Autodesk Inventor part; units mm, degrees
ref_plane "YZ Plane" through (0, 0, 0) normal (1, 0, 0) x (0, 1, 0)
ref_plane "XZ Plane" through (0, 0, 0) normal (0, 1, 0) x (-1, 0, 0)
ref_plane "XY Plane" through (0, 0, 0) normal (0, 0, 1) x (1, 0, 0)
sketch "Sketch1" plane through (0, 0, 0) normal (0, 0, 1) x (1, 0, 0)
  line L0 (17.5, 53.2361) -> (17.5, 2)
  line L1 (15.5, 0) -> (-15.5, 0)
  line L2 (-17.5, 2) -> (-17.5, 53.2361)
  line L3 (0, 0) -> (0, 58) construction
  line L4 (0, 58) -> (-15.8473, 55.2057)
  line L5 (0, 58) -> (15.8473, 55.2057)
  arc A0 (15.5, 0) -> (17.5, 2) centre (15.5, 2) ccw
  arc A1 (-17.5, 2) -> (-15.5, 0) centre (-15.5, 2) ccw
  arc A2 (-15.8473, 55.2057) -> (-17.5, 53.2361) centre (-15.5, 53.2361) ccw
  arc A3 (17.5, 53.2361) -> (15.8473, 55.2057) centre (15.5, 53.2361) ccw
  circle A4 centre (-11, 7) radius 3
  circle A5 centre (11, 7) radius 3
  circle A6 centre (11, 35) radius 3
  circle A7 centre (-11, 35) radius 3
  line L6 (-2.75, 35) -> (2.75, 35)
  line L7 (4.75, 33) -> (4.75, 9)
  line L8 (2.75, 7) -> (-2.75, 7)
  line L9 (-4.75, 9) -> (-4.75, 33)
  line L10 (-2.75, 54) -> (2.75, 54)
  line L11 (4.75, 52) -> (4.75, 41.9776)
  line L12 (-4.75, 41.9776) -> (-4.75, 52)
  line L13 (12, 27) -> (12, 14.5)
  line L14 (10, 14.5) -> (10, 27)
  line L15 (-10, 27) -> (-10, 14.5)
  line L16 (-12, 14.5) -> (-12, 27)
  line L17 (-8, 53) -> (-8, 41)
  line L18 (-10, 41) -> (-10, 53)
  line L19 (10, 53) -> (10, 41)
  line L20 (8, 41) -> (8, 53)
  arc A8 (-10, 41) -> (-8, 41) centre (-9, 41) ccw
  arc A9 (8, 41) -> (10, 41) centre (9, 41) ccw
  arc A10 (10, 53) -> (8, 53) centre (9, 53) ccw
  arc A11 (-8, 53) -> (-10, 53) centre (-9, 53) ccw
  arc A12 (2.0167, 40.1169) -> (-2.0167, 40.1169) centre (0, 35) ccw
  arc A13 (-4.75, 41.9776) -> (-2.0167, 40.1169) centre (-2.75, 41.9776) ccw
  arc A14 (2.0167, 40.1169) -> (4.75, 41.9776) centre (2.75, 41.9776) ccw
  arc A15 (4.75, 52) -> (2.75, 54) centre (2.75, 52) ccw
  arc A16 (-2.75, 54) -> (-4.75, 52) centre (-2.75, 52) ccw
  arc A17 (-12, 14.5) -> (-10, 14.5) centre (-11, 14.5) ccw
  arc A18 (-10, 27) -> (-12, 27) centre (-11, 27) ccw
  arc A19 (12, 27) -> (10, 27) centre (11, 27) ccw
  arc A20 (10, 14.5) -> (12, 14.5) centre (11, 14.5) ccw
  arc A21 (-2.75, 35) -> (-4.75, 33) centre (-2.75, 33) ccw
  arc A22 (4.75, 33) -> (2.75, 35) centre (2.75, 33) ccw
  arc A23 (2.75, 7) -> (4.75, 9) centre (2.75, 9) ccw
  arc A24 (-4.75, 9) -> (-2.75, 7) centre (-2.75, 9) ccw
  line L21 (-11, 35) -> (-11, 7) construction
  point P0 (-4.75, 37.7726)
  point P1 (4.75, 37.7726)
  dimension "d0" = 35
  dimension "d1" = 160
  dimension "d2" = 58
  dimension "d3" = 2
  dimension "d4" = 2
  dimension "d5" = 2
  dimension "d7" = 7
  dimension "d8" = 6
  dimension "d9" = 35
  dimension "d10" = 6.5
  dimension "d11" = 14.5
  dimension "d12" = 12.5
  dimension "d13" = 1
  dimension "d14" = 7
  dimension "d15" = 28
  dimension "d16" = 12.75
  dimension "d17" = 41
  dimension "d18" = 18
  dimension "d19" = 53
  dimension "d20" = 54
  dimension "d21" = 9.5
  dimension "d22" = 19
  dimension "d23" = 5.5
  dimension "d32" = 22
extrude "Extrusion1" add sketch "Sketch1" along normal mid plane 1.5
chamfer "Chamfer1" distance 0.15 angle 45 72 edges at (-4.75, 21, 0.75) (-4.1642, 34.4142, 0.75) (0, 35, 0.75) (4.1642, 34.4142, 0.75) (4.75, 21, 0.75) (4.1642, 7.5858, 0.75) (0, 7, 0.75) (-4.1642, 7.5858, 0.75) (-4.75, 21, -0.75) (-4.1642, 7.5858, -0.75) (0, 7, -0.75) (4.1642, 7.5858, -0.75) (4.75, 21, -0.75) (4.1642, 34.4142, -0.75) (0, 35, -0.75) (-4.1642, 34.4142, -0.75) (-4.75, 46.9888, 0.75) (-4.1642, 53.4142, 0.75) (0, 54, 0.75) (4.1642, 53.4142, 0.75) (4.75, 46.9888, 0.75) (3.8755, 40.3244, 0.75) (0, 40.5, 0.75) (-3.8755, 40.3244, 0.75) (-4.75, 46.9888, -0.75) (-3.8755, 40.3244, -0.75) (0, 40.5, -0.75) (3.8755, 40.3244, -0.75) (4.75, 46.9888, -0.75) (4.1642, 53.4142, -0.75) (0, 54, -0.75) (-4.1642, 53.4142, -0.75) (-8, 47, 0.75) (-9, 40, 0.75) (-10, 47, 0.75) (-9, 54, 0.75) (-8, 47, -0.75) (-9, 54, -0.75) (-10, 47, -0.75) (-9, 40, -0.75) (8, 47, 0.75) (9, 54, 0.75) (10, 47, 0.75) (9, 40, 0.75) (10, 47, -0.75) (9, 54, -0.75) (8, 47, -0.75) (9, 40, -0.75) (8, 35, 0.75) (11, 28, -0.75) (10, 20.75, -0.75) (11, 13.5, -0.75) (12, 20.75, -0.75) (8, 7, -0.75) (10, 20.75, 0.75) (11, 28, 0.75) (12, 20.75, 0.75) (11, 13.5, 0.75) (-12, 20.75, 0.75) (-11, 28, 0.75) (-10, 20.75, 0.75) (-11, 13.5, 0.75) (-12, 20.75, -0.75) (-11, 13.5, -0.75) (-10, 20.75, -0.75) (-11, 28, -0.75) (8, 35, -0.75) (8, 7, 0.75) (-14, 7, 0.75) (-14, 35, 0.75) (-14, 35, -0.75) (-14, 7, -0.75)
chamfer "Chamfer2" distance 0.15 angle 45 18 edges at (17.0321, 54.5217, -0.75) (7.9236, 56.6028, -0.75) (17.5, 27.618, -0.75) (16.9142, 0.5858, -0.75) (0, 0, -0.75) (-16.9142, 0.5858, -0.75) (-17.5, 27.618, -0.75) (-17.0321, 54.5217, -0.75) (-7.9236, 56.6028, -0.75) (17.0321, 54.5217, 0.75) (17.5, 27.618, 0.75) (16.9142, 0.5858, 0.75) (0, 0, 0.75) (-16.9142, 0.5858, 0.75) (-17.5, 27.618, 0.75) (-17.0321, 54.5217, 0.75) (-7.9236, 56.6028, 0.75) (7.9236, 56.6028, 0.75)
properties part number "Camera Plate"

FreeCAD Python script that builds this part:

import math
import FreeCAD as App
import Part
import Sketcher
from FreeCAD import Vector
Q = App.Units.Quantity


def edges_at(feature, points):
    """Names of the edges that pass closest to the given points."""
    edges = feature.Shape.Edges
    near = lambda p: min(range(len(edges)), key=lambda i: edges[i].distToShape(Part.Vertex(*p))[0])
    return sorted({f"Edge{near(p) + 1}" for p in points})

doc = App.newDocument("Part")
body = doc.addObject("PartDesign::Body", "Body")

# Sketch on XY plane
sketch1 = body.newObject("Sketcher::SketchObject", "Sketch")
sketch1.AttachmentSupport = (doc.getObject("XY_Plane"), [""])
sketch1.MapMode = "FlatFace"
sketch1.addGeometry(Part.LineSegment(Vector(17.5, 2, 0), Vector(17.5, 53.2, 0)), False)
sketch1.addGeometry(Part.ArcOfCircle(Part.Circle(Vector(15.5, 53.2, 0), Vector(0, 0, 1), 2), math.radians(0), math.radians(80)), False)
sketch1.addGeometry(Part.LineSegment(Vector(15.8, 55.2, 0), Vector(0, 58, 0)), False)
sketch1.addGeometry(Part.LineSegment(Vector(0, 58, 0), Vector(-15.8, 55.2, 0)), False)
sketch1.addGeometry(Part.ArcOfCircle(Part.Circle(Vector(-15.5, 53.2, 0), Vector(0, 0, 1), 2), math.radians(100), math.radians(180)), False)
sketch1.addGeometry(Part.LineSegment(Vector(-17.5, 53.2, 0), Vector(-17.5, 2, 0)), False)
sketch1.addGeometry(Part.ArcOfCircle(Part.Circle(Vector(-15.5, 2, 0), Vector(0, 0, 1), 2), math.radians(180), math.radians(270)), False)
sketch1.addGeometry(Part.LineSegment(Vector(-15.5, 0, 0), Vector(15.5, 0, 0)), False)
sketch1.addGeometry(Part.ArcOfCircle(Part.Circle(Vector(15.5, 2, 0), Vector(0, 0, 1), 2), math.radians(-90), math.radians(0)), False)
sketch1.addGeometry(Part.Circle(Vector(-11, 7, 0), Vector(0, 0, 1), 3), False)
sketch1.addGeometry(Part.ArcOfCircle(Part.Circle(Vector(-11, 27, 0), Vector(0, 0, 1), 1), math.radians(0), math.radians(180)), False)
sketch1.addGeometry(Part.LineSegment(Vector(-10, 27, 0), Vector(-10, 14.5, 0)), False)
sketch1.addGeometry(Part.ArcOfCircle(Part.Circle(Vector(-11, 14.5, 0), Vector(0, 0, 1), 1), math.radians(180), math.radians(360)), False)
sketch1.addGeometry(Part.LineSegment(Vector(-12, 14.5, 0), Vector(-12, 27, 0)), False)
sketch1.addGeometry(Part.ArcOfCircle(Part.Circle(Vector(-2.8, 33, 0), Vector(0, 0, 1), 2), math.radians(90), math.radians(180)), False)
sketch1.addGeometry(Part.LineSegment(Vector(-2.8, 35, 0), Vector(2.8, 35, 0)), False)
sketch1.addGeometry(Part.ArcOfCircle(Part.Circle(Vector(2.8, 33, 0), Vector(0, 0, 1), 2), math.radians(0), math.radians(90)), False)
sketch1.addGeometry(Part.LineSegment(Vector(4.8, 33, 0), Vector(4.8, 9, 0)), False)
sketch1.addGeometry(Part.ArcOfCircle(Part.Circle(Vector(2.8, 9, 0), Vector(0, 0, 1), 2), math.radians(-90), math.radians(0)), False)
sketch1.addGeometry(Part.LineSegment(Vector(2.8, 7, 0), Vector(-2.8, 7, 0)), False)
sketch1.addGeometry(Part.ArcOfCircle(Part.Circle(Vector(-2.8, 9, 0), Vector(0, 0, 1), 2), math.radians(180), math.radians(270)), False)
sketch1.addGeometry(Part.LineSegment(Vector(-4.8, 9, 0), Vector(-4.8, 33, 0)), False)
sketch1.addGeometry(Part.Circle(Vector(11, 7, 0), Vector(0, 0, 1), 3), False)
sketch1.addGeometry(Part.ArcOfCircle(Part.Circle(Vector(11, 27, 0), Vector(0, 0, 1), 1), math.radians(0), math.radians(180)), False)
sketch1.addGeometry(Part.LineSegment(Vector(12, 27, 0), Vector(12, 14.5, 0)), False)
sketch1.addGeometry(Part.ArcOfCircle(Part.Circle(Vector(11, 14.5, 0), Vector(0, 0, 1), 1), math.radians(180), math.radians(360)), False)
sketch1.addGeometry(Part.LineSegment(Vector(10, 14.5, 0), Vector(10, 27, 0)), False)
sketch1.addGeometry(Part.Circle(Vector(-11, 35, 0), Vector(0, 0, 1), 3), False)
sketch1.addGeometry(Part.ArcOfCircle(Part.Circle(Vector(-9, 53, 0), Vector(0, 0, 1), 1), math.radians(0), math.radians(180)), False)
sketch1.addGeometry(Part.LineSegment(Vector(-8, 53, 0), Vector(-8, 41, 0)), False)
sketch1.addGeometry(Part.ArcOfCircle(Part.Circle(Vector(-9, 41, 0), Vector(0, 0, 1), 1), math.radians(180), math.radians(360)), False)
sketch1.addGeometry(Part.LineSegment(Vector(-10, 41, 0), Vector(-10, 53, 0)), False)
sketch1.addGeometry(Part.ArcOfCircle(Part.Circle(Vector(-2.8, 52, 0), Vector(0, 0, 1), 2), math.radians(90), math.radians(180)), False)
sketch1.addGeometry(Part.LineSegment(Vector(-2.8, 54, 0), Vector(2.8, 54, 0)), False)
sketch1.addGeometry(Part.ArcOfCircle(Part.Circle(Vector(2.8, 52, 0), Vector(0, 0, 1), 2), math.radians(0), math.radians(90)), False)
sketch1.addGeometry(Part.LineSegment(Vector(4.8, 52, 0), Vector(4.8, 42, 0)), False)
sketch1.addGeometry(Part.ArcOfCircle(Part.Circle(Vector(2.8, 42, 0), Vector(0, 0, 1), 2), math.radians(-112), math.radians(0)), False)
sketch1.addGeometry(Part.ArcOfCircle(Part.Circle(Vector(0, 35, 0), Vector(0, 0, 1), 5.5), math.radians(68), math.radians(112)), False)
sketch1.addGeometry(Part.ArcOfCircle(Part.Circle(Vector(-2.8, 42, 0), Vector(0, 0, 1), 2), math.radians(180), math.radians(292)), False)
sketch1.addGeometry(Part.LineSegment(Vector(-4.8, 42, 0), Vector(-4.8, 52, 0)), False)
sketch1.addGeometry(Part.Circle(Vector(11, 35, 0), Vector(0, 0, 1), 3), False)
sketch1.addGeometry(Part.ArcOfCircle(Part.Circle(Vector(9, 53, 0), Vector(0, 0, 1), 1), math.radians(0), math.radians(180)), False)
sketch1.addGeometry(Part.LineSegment(Vector(10, 53, 0), Vector(10, 41, 0)), False)
sketch1.addGeometry(Part.ArcOfCircle(Part.Circle(Vector(9, 41, 0), Vector(0, 0, 1), 1), math.radians(180), math.radians(360)), False)
sketch1.addGeometry(Part.LineSegment(Vector(8, 41, 0), Vector(8, 53, 0)), False)
sketch1.addConstraint(Sketcher.Constraint("Tangent", 0, 2, 1, 1))
sketch1.addConstraint(Sketcher.Constraint("Tangent", 1, 2, 2, 1))
sketch1.addConstraint(Sketcher.Constraint("Coincident", 2, 2, 3, 1))
sketch1.addConstraint(Sketcher.Constraint("Tangent", 3, 2, 4, 1))
sketch1.addConstraint(Sketcher.Constraint("Tangent", 4, 2, 5, 1))
sketch1.addConstraint(Sketcher.Constraint("Tangent", 5, 2, 6, 1))
sketch1.addConstraint(Sketcher.Constraint("Tangent", 6, 2, 7, 1))
sketch1.addConstraint(Sketcher.Constraint("Tangent", 7, 2, 8, 1))
sketch1.addConstraint(Sketcher.Constraint("Tangent", 8, 2, 0, 1))
sketch1.addConstraint(Sketcher.Constraint("Tangent", 10, 1, 11, 1))
sketch1.addConstraint(Sketcher.Constraint("Tangent", 11, 2, 12, 2))
sketch1.addConstraint(Sketcher.Constraint("Tangent", 12, 1, 13, 1))
sketch1.addConstraint(Sketcher.Constraint("Tangent", 13, 2, 10, 2))
sketch1.addConstraint(Sketcher.Constraint("Tangent", 14, 1, 15, 1))
sketch1.addConstraint(Sketcher.Constraint("Tangent", 15, 2, 16, 2))
sketch1.addConstraint(Sketcher.Constraint("Tangent", 16, 1, 17, 1))
sketch1.addConstraint(Sketcher.Constraint("Tangent", 17, 2, 18, 2))
sketch1.addConstraint(Sketcher.Constraint("Tangent", 18, 1, 19, 1))
sketch1.addConstraint(Sketcher.Constraint("Tangent", 19, 2, 20, 2))
sketch1.addConstraint(Sketcher.Constraint("Tangent", 20, 1, 21, 1))
sketch1.addConstraint(Sketcher.Constraint("Tangent", 21, 2, 14, 2))
sketch1.addConstraint(Sketcher.Constraint("Tangent", 23, 1, 24, 1))
sketch1.addConstraint(Sketcher.Constraint("Tangent", 24, 2, 25, 2))
sketch1.addConstraint(Sketcher.Constraint("Tangent", 25, 1, 26, 1))
sketch1.addConstraint(Sketcher.Constraint("Tangent", 26, 2, 23, 2))
sketch1.addConstraint(Sketcher.Constraint("Tangent", 28, 1, 29, 1))
sketch1.addConstraint(Sketcher.Constraint("Tangent", 29, 2, 30, 2))
sketch1.addConstraint(Sketcher.Constraint("Tangent", 30, 1, 31, 1))
sketch1.addConstraint(Sketcher.Constraint("Tangent", 31, 2, 28, 2))
sketch1.addConstraint(Sketcher.Constraint("Tangent", 32, 1, 33, 1))
sketch1.addConstraint(Sketcher.Constraint("Tangent", 33, 2, 34, 2))
sketch1.addConstraint(Sketcher.Constraint("Tangent", 34, 1, 35, 1))
sketch1.addConstraint(Sketcher.Constraint("Tangent", 35, 2, 36, 2))
sketch1.addConstraint(Sketcher.Constraint("Tangent", 36, 1, 37, 1))
sketch1.addConstraint(Sketcher.Constraint("Tangent", 37, 2, 38, 2))
sketch1.addConstraint(Sketcher.Constraint("Tangent", 38, 1, 39, 1))
sketch1.addConstraint(Sketcher.Constraint("Tangent", 39, 2, 32, 2))
sketch1.addConstraint(Sketcher.Constraint("Tangent", 41, 1, 42, 1))
sketch1.addConstraint(Sketcher.Constraint("Tangent", 42, 2, 43, 2))
sketch1.addConstraint(Sketcher.Constraint("Tangent", 43, 1, 44, 1))
sketch1.addConstraint(Sketcher.Constraint("Tangent", 44, 2, 41, 2))
sketch1.addConstraint(Sketcher.Constraint("Vertical", 0))
sketch1.addConstraint(Sketcher.Constraint("Vertical", 5))
sketch1.addConstraint(Sketcher.Constraint("Horizontal", 7))
sketch1.addConstraint(Sketcher.Constraint("Vertical", 11))
sketch1.addConstraint(Sketcher.Constraint("Vertical", 13))
sketch1.addConstraint(Sketcher.Constraint("Horizontal", 15))
sketch1.addConstraint(Sketcher.Constraint("Vertical", 17))
sketch1.addConstraint(Sketcher.Constraint("Horizontal", 19))
sketch1.addConstraint(Sketcher.Constraint("Vertical", 21))
sketch1.addConstraint(Sketcher.Constraint("Vertical", 24))
sketch1.addConstraint(Sketcher.Constraint("Vertical", 26))
sketch1.addConstraint(Sketcher.Constraint("Vertical", 29))
sketch1.addConstraint(Sketcher.Constraint("Vertical", 31))
sketch1.addConstraint(Sketcher.Constraint("Horizontal", 33))
sketch1.addConstraint(Sketcher.Constraint("Vertical", 35))
sketch1.addConstraint(Sketcher.Constraint("Vertical", 39))
sketch1.addConstraint(Sketcher.Constraint("Vertical", 42))
sketch1.addConstraint(Sketcher.Constraint("Vertical", 44))
sketch1.addConstraint(Sketcher.Constraint("Equal", 1, 4))
sketch1.addConstraint(Sketcher.Constraint("Equal", 4, 6))
sketch1.addConstraint(Sketcher.Constraint("Equal", 6, 8))
sketch1.addConstraint(Sketcher.Constraint("Equal", 8, 14))
sketch1.addConstraint(Sketcher.Constraint("Equal", 14, 16))
sketch1.addConstraint(Sketcher.Constraint("Equal", 16, 18))
sketch1.addConstraint(Sketcher.Constraint("Equal", 18, 20))
sketch1.addConstraint(Sketcher.Constraint("Equal", 9, 22))
sketch1.addConstraint(Sketcher.Constraint("Equal", 12, 23))
sketch1.addConstraint(Sketcher.Constraint("Equal", 22, 27))
sketch1.addConstraint(Sketcher.Constraint("Equal", 25, 28))
sketch1.addConstraint(Sketcher.Constraint("Equal", 20, 32))
sketch1.addConstraint(Sketcher.Constraint("Equal", 32, 34))
sketch1.addConstraint(Sketcher.Constraint("Equal", 34, 36))
sketch1.addConstraint(Sketcher.Constraint("Equal", 36, 38))
sketch1.addConstraint(Sketcher.Constraint("Equal", 27, 40))
sketch1.addConstraint(Sketcher.Constraint("Equal", 30, 41))
sketch1.addConstraint(Sketcher.Constraint("Symmetric", 6, 2, 7, 2, -1, 1))
sketch1.addConstraint(Sketcher.Constraint("Symmetric", 9, 3, 22, 3, -2))
sketch1.addConstraint(Sketcher.Constraint("Symmetric", 10, 3, 23, 3, -2))
sketch1.addConstraint(Sketcher.Constraint("Symmetric", 36, 3, 38, 3, -2))
sketch1.addConstraint(Sketcher.Constraint("Symmetric", 27, 3, 40, 3, -2))
sketch1.addConstraint(Sketcher.Constraint("Symmetric", 28, 3, 41, 3, -2))
sketch1.addConstraint(Sketcher.Constraint("Symmetric", 1, 2, 3, 2, -2))
sketch1.addConstraint(Sketcher.Constraint("Horizontal", 12, 3, 25, 3))
sketch1.addConstraint(Sketcher.Constraint("Horizontal", 27, 3, 37, 3))
sketch1.addConstraint(Sketcher.Constraint("Horizontal", 30, 3, 43, 3))
sketch1.addConstraint(Sketcher.Constraint("Horizontal", 40, 3, 14, 1))
sketch1.addConstraint(Sketcher.Constraint("Horizontal", 22, 3, 18, 1))
sketch1.addConstraint(Sketcher.Constraint("Vertical", 9, 3, 10, 3))
sketch1.addConstraint(Sketcher.Constraint("Vertical", 12, 3, 27, 3))
sketch1.addConstraint(Sketcher.Constraint("Vertical", 20, 3, 32, 3))
sketch1.addConstraint(Sketcher.Constraint("Vertical", 18, 3, 34, 3))
sketch1.addConstraint(Sketcher.Constraint("Vertical", 11, 2, 30, 1))
sketch1.addConstraint(Sketcher.Constraint("Diameter", 9, Q("6 mm")))
sketch1.addConstraint(Sketcher.Constraint("Radius", 1, Q("2 mm")))
sketch1.addConstraint(Sketcher.Constraint("Radius", 10, Q("1 mm")))
sketch1.addConstraint(Sketcher.Constraint("Radius", 37, Q("5.5 mm")))
sketch1.addConstraint(Sketcher.Constraint("DistanceX", 15, 1, 15, 2, Q("5.5 mm")))
sketch1.addConstraint(Sketcher.Constraint("DistanceY", 11, 2, 11, 1, Q("12.5 mm")))
sketch1.addConstraint(Sketcher.Constraint("DistanceY", -1, 1, 9, 3, Q("7 mm")))
sketch1.addConstraint(Sketcher.Constraint("DistanceY", -1, 1, 27, 3, Q("35 mm")))
sketch1.addConstraint(Sketcher.Constraint("DistanceY", -1, 1, 28, 3, Q("53 mm")))
sketch1.addConstraint(Sketcher.Constraint("DistanceY", -1, 1, 30, 3, Q("41 mm")))
sketch1.addConstraint(Sketcher.Constraint("DistanceY", -1, 1, 2, 2, Q("58 mm")))
sketch1.addConstraint(Sketcher.Constraint("DistanceY", -1, 1, 32, 1, Q("54 mm")))
sketch1.addConstraint(Sketcher.Constraint("DistanceY", -1, 1, 12, 3, Q("14.5 mm")))
sketch1.addConstraint(Sketcher.Constraint("DistanceX", 7, 1, 7, 2, Q("31 mm")))
sketch1.addConstraint(Sketcher.Constraint("Angle", 2, Q("170 deg")))
sketch1.addConstraint(Sketcher.Constraint("DistanceX", 9, 3, -1, 1, Q("11 mm")))
pad1 = body.newObject("PartDesign::Pad", "Pad")
pad1.Profile = sketch1
pad1.Length = 1.5
pad1.Midplane = True
doc.recompute()

chamfer = body.newObject("PartDesign::Chamfer", "Chamfer")
chamfer.Base = (pad1, edges_at(pad1, [
    (-4.75, 21, 0.75),
    (-4.164, 34.414, 0.75),
    (0, 35, 0.75),
    (4.164, 34.414, 0.75),
    (4.75, 21, 0.75),
    (4.164, 7.586, 0.75),
    (0, 7, 0.75),
    (-4.164, 7.586, 0.75),
    (-4.75, 21, -0.75),
    (-4.164, 7.586, -0.75),
    (0, 7, -0.75),
    (4.164, 7.586, -0.75),
    (4.75, 21, -0.75),
    (4.164, 34.414, -0.75),
    (0, 35, -0.75),
    (-4.164, 34.414, -0.75),
    (-4.75, 46.989, 0.75),
    (-4.164, 53.414, 0.75),
    (0, 54, 0.75),
    (4.164, 53.414, 0.75),
    (4.75, 46.989, 0.75),
    (3.876, 40.324, 0.75),
    (0, 40.5, 0.75),
    (-3.876, 40.324, 0.75),
    (-4.75, 46.989, -0.75),
    (-3.876, 40.324, -0.75),
    (0, 40.5, -0.75),
    (3.876, 40.324, -0.75),
    (4.75, 46.989, -0.75),
    (4.164, 53.414, -0.75),
    (0, 54, -0.75),
    (-4.164, 53.414, -0.75),
    (-8, 47, 0.75),
    (-9, 40, 0.75),
    (-10, 47, 0.75),
    (-9, 54, 0.75),
    (-8, 47, -0.75),
    (-9, 54, -0.75),
    (-10, 47, -0.75),
    (-9, 40, -0.75),
    (8, 47, 0.75),
    (9, 54, 0.75),
    (10, 47, 0.75),
    (9, 40, 0.75),
    (10, 47, -0.75),
    (9, 54, -0.75),
    (8, 47, -0.75),
    (9, 40, -0.75),
    (8, 35, 0.75),
    (11, 28, -0.75),
    (10, 20.75, -0.75),
    (11, 13.5, -0.75),
    (12, 20.75, -0.75),
    (8, 7, -0.75),
    (10, 20.75, 0.75),
    (11, 28, 0.75),
    (12, 20.75, 0.75),
    (11, 13.5, 0.75),
    (-12, 20.75, 0.75),
    (-11, 28, 0.75),
    (-10, 20.75, 0.75),
    (-11, 13.5, 0.75),
    (-12, 20.75, -0.75),
    (-11, 13.5, -0.75),
    (-10, 20.75, -0.75),
    (-11, 28, -0.75),
    (8, 35, -0.75),
    (8, 7, 0.75),
    (-14, 7, 0.75),
    (-14, 35, 0.75),
    (-14, 35, -0.75),
    (-14, 7, -0.75),
]))
chamfer.Size = 0.15
doc.recompute()

chamfer2 = body.newObject("PartDesign::Chamfer", "Chamfer001")
chamfer2.Base = (chamfer, edges_at(chamfer, [
    (17.032, 54.522, -0.75),
    (7.924, 56.603, -0.75),
    (17.5, 27.618, -0.75),
    (16.914, 0.586, -0.75),
    (0, 0, -0.75),
    (-16.914, 0.586, -0.75),
    (-17.5, 27.618, -0.75),
    (-17.032, 54.522, -0.75),
    (-7.924, 56.603, -0.75),
    (17.032, 54.522, 0.75),
    (17.5, 27.618, 0.75),
    (16.914, 0.586, 0.75),
    (0, 0, 0.75),
    (-16.914, 0.586, 0.75),
    (-17.5, 27.618, 0.75),
    (-17.032, 54.522, 0.75),
    (-7.924, 56.603, 0.75),
    (7.924, 56.603, 0.75),
]))
chamfer2.Size = 0.15

doc.recompute()
